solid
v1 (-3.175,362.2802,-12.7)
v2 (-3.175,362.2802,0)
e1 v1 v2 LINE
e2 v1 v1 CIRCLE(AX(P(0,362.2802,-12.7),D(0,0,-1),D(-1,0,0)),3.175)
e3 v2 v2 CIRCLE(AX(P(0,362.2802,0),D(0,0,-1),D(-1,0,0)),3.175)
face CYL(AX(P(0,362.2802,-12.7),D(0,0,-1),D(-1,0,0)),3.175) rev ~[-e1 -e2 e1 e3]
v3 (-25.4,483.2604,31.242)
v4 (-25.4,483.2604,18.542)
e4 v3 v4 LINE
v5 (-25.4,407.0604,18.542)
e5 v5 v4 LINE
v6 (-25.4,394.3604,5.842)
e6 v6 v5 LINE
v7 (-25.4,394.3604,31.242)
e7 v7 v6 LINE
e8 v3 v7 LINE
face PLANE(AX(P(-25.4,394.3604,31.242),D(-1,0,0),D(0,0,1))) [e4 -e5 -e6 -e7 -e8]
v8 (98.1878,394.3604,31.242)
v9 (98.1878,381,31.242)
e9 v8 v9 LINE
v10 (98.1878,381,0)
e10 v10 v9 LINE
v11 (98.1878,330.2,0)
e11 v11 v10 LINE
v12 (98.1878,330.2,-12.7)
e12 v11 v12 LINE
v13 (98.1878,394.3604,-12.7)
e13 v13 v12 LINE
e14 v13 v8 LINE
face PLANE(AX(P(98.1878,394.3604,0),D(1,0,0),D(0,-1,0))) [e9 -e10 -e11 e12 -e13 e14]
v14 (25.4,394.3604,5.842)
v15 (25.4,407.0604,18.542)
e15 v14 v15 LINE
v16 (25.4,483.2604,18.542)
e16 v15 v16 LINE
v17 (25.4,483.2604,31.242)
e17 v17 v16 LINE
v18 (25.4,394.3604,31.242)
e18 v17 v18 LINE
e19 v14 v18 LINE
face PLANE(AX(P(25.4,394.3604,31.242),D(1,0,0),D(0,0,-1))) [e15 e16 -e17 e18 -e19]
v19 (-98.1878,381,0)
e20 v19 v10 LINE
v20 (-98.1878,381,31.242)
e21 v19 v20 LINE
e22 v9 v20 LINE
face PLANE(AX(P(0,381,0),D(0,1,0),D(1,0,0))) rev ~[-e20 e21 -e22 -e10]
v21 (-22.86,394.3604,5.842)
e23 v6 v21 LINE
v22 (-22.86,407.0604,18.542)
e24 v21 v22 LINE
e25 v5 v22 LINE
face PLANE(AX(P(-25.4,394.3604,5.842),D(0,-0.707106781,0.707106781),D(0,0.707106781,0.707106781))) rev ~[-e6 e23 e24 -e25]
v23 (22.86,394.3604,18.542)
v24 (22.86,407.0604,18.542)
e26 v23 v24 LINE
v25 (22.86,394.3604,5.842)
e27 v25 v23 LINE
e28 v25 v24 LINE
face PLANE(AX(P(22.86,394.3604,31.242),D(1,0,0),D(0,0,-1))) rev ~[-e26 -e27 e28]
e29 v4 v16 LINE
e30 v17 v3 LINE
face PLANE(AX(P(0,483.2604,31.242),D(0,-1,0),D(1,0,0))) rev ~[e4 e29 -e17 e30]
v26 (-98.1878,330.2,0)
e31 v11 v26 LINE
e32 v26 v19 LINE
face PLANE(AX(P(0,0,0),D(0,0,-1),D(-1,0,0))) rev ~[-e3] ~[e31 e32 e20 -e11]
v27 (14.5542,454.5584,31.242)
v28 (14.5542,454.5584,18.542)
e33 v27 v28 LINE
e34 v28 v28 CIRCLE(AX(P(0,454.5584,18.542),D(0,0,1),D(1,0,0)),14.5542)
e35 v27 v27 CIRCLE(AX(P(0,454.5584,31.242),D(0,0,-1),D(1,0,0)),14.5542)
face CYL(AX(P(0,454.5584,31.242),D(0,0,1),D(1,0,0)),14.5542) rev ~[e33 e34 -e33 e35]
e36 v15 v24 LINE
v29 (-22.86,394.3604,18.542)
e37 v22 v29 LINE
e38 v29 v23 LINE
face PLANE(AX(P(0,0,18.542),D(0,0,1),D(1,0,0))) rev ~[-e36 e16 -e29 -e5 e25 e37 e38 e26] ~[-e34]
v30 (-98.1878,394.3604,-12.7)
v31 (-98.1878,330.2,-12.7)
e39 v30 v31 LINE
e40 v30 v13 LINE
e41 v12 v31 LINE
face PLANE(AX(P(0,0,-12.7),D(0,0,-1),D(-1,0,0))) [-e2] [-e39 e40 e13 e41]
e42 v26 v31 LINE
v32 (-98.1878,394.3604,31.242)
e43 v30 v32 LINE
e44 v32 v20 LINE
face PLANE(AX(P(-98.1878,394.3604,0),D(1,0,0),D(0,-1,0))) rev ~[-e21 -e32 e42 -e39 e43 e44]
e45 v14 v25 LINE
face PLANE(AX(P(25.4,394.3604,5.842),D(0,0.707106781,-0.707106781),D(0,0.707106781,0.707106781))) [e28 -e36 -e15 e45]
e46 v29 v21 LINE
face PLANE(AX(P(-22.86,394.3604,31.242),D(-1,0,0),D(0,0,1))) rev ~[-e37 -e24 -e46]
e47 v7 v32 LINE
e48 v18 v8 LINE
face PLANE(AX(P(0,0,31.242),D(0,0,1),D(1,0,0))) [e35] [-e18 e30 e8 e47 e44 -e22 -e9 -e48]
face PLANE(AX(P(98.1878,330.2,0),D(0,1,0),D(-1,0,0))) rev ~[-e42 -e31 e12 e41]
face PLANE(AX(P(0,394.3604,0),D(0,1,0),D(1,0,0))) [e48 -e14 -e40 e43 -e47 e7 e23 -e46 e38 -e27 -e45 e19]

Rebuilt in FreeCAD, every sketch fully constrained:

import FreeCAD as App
import Part
import Sketcher
Q = App.Units.Quantity

doc = App.newDocument("Part")
body = doc.addObject("PartDesign::Body", "Body")

sketch1 = body.newObject("Sketcher::SketchObject", "Sketch")
sketch1.AttachmentSupport = (doc.getObject("XY_Plane"), [""])
sketch1.MapMode = "FlatFace"
sketch1.addGeometry([
    Part.LineSegment(App.Vector(98, 381, 0), App.Vector(98, 394, 0)),
    Part.LineSegment(App.Vector(98, 394, 0), App.Vector(-98, 394, 0)),
    Part.LineSegment(App.Vector(-98, 394, 0), App.Vector(-98, 381, 0)),
    Part.LineSegment(App.Vector(-98, 381, 0), App.Vector(98, 381, 0)),
], False)
sketch1.addConstraint([
    Sketcher.Constraint("Coincident", 0, 2, 1, 1),
    Sketcher.Constraint("Coincident", 1, 2, 2, 1),
    Sketcher.Constraint("Coincident", 2, 2, 3, 1),
    Sketcher.Constraint("Coincident", 3, 2, 0, 1),
    Sketcher.Constraint("Vertical", 0),
    Sketcher.Constraint("Horizontal", 1),
    Sketcher.Constraint("Vertical", 2),
    Sketcher.Constraint("Horizontal", 3),
    Sketcher.Constraint("DistanceY", -1, 1, 0, 2, Q("15.526 in")),
    Sketcher.Constraint("DistanceY", -1, 1, 2, 2, Q("15 in")),
    Sketcher.Constraint("DistanceX", 1, 2, 1, 1, 196.3756),
    Sketcher.Constraint("DistanceX", -1, 1, 0, 2, 98.1878),
])
pad1 = body.newObject("PartDesign::Pad", "Pad")
pad1.Profile = sketch1
pad1.Length = Q("1.23 in")

sketch2 = body.newObject("Sketcher::SketchObject", "Sketch001")
sketch2.AttachmentSupport = (doc.getObject("XY_Plane"), [""])
sketch2.MapMode = "FlatFace"
sketch2.AttachmentOffset = App.Placement(App.Vector(0, 0, 1.23 * 25.4), App.Rotation())
sketch2.addGeometry([
    Part.LineSegment(App.Vector(25, 394, 0), App.Vector(25, 483, 0)),
    Part.LineSegment(App.Vector(25, 483, 0), App.Vector(-25, 483, 0)),
    Part.LineSegment(App.Vector(-25, 483, 0), App.Vector(-25, 394, 0)),
    Part.LineSegment(App.Vector(-25, 394, 0), App.Vector(25, 394, 0)),
    Part.Circle(App.Vector(0, 455, 0), App.Vector(0, 0, 1), 15),
], False)
sketch2.addConstraint([
    Sketcher.Constraint("Coincident", 0, 2, 1, 1),
    Sketcher.Constraint("Coincident", 1, 2, 2, 1),
    Sketcher.Constraint("Coincident", 2, 2, 3, 1),
    Sketcher.Constraint("Coincident", 3, 2, 0, 1),
    Sketcher.Constraint("Vertical", 0),
    Sketcher.Constraint("Horizontal", 1),
    Sketcher.Constraint("Vertical", 2),
    Sketcher.Constraint("Horizontal", 3),
    Sketcher.Constraint("PointOnObject", 4, 3, -2),
    Sketcher.Constraint("DistanceX", 1, 2, 1, 1, Q("2 in")),
    Sketcher.Constraint("Diameter", 4, Q("1.146 in")),
    Sketcher.Constraint("DistanceY", 0, 1, 0, 2, Q("3.5 in")),
    Sketcher.Constraint("DistanceX", -1, 1, 0, 2, Q("1 in")),
    Sketcher.Constraint("DistanceY", 2, 2, 4, 3, Q("2.37 in")),
    Sketcher.Constraint("DistanceY", -1, 1, 4, 3, Q("17.896 in")),
])
pad2 = body.newObject("PartDesign::Pad", "Pad001")
pad2.Profile = sketch2
pad2.Length = Q("0.5 in")
pad2.Reversed = True

sketch3 = body.newObject("Sketcher::SketchObject", "Sketch002")
sketch3.AttachmentSupport = (doc.getObject("XY_Plane"), [""])
sketch3.MapMode = "FlatFace"
sketch3.addGeometry([
    Part.LineSegment(App.Vector(-98, 394, 0), App.Vector(98, 394, 0)),
    Part.LineSegment(App.Vector(98, 394, 0), App.Vector(98, 330, 0)),
    Part.LineSegment(App.Vector(98, 330, 0), App.Vector(-98, 330, 0)),
    Part.LineSegment(App.Vector(-98, 330, 0), App.Vector(-98, 394, 0)),
], False)
sketch3.addConstraint([
    Sketcher.Constraint("Coincident", 0, 2, 1, 1),
    Sketcher.Constraint("Coincident", 1, 2, 2, 1),
    Sketcher.Constraint("Coincident", 2, 2, 3, 1),
    Sketcher.Constraint("Coincident", 3, 2, 0, 1),
    Sketcher.Constraint("Horizontal", 0),
    Sketcher.Constraint("Vertical", 1),
    Sketcher.Constraint("Horizontal", 2),
    Sketcher.Constraint("Vertical", 3),
    Sketcher.Constraint("DistanceY", 1, 2, 1, 1, Q("2.526 in")),
    Sketcher.Constraint("DistanceY", -1, 1, 1, 2, Q("13 in")),
    Sketcher.Constraint("DistanceX", 0, 1, 0, 2, 196.3756),
    Sketcher.Constraint("DistanceX", -1, 1, 0, 2, 98.1878),
])
pad3 = body.newObject("PartDesign::Pad", "Pad002")
pad3.Profile = sketch3
pad3.Length = Q("0.5 in")
pad3.Reversed = True

sketch4 = body.newObject("Sketcher::SketchObject", "Sketch003")
sketch4.AttachmentSupport = (doc.getObject("XY_Plane"), [""])
sketch4.MapMode = "FlatFace"
sketch4.AttachmentOffset = App.Placement(App.Vector(0, 0, -0.5 * 25.4), App.Rotation())
sketch4.addGeometry(Part.Circle(App.Vector(0, 362.3, 0), App.Vector(0, 0, 1), 3.2), False)
sketch4.addConstraint([
    Sketcher.Constraint("PointOnObject", 0, 3, -2),
    Sketcher.Constraint("Diameter", 0, Q("0.25 in")),
    Sketcher.Constraint("DistanceY", -1, 1, 0, 3, Q("14.263 in")),
])
pocket1 = body.newObject("PartDesign::Pocket", "Pocket")
pocket1.Profile = sketch4
pocket1.Length = Q("0.5 in")
pocket1.Reversed = True

sketch5 = body.newObject("Sketcher::SketchObject", "Sketch004")
sketch5.AttachmentSupport = (doc.getObject("YZ_Plane"), [""])
sketch5.MapMode = "FlatFace"
sketch5.AttachmentOffset = App.Placement(App.Vector(0, 0, -1 * 25.4), App.Rotation())
sketch5.addGeometry([
    Part.LineSegment(App.Vector(394, 19, 0), App.Vector(407, 19, 0)),
    Part.LineSegment(App.Vector(407, 19, 0), App.Vector(394, 6, 0)),
    Part.LineSegment(App.Vector(394, 6, 0), App.Vector(394, 19, 0)),
], False)
sketch5.addConstraint([
    Sketcher.Constraint("Coincident", 0, 2, 1, 1),
    Sketcher.Constraint("Coincident", 1, 2, 2, 1),
    Sketcher.Constraint("Coincident", 2, 2, 0, 1),
    Sketcher.Constraint("Horizontal", 0),
    Sketcher.Constraint("Vertical", 2),
    Sketcher.Constraint("Equal", 0, 2),
    Sketcher.Constraint("DistanceX", 0, 1, 0, 2, Q("0.5 in")),
    Sketcher.Constraint("DistanceY", -1, 1, 0, 2, Q("0.73 in")),
    Sketcher.Constraint("DistanceX", -1, 1, 0, 2, Q("16.026 in")),
])
pad4 = body.newObject("PartDesign::Pad", "Pad003")
pad4.Profile = sketch5
pad4.Length = Q("0.1 in")

sketch6 = body.newObject("Sketcher::SketchObject", "Sketch005")
sketch6.AttachmentSupport = (doc.getObject("YZ_Plane"), [""])
sketch6.MapMode = "FlatFace"
sketch6.AttachmentOffset = App.Placement(App.Vector(0, 0, 1 * 25.4), App.Rotation())
sketch6.addGeometry([
    Part.LineSegment(App.Vector(394, 19, 0), App.Vector(394, 6, 0)),
    Part.LineSegment(App.Vector(394, 6, 0), App.Vector(407, 19, 0)),
    Part.LineSegment(App.Vector(407, 19, 0), App.Vector(394, 19, 0)),
], False)
sketch6.addConstraint([
    Sketcher.Constraint("Coincident", 0, 2, 1, 1),
    Sketcher.Constraint("Coincident", 1, 2, 2, 1),
    Sketcher.Constraint("Coincident", 2, 2, 0, 1),
    Sketcher.Constraint("Vertical", 0),
    Sketcher.Constraint("Horizontal", 2),
    Sketcher.Constraint("Equal", 2, 0),
    Sketcher.Constraint("DistanceX", 2, 2, 2, 1, Q("0.5 in")),
    Sketcher.Constraint("DistanceY", -1, 1, 0, 2, Q("0.23 in")),
    Sketcher.Constraint("DistanceX", -1, 1, 0, 2, Q("15.526 in")),
])
pad5 = body.newObject("PartDesign::Pad", "Pad004")
pad5.Profile = sketch6
pad5.Length = Q("0.1 in")
pad5.Reversed = True

doc.recompute()
